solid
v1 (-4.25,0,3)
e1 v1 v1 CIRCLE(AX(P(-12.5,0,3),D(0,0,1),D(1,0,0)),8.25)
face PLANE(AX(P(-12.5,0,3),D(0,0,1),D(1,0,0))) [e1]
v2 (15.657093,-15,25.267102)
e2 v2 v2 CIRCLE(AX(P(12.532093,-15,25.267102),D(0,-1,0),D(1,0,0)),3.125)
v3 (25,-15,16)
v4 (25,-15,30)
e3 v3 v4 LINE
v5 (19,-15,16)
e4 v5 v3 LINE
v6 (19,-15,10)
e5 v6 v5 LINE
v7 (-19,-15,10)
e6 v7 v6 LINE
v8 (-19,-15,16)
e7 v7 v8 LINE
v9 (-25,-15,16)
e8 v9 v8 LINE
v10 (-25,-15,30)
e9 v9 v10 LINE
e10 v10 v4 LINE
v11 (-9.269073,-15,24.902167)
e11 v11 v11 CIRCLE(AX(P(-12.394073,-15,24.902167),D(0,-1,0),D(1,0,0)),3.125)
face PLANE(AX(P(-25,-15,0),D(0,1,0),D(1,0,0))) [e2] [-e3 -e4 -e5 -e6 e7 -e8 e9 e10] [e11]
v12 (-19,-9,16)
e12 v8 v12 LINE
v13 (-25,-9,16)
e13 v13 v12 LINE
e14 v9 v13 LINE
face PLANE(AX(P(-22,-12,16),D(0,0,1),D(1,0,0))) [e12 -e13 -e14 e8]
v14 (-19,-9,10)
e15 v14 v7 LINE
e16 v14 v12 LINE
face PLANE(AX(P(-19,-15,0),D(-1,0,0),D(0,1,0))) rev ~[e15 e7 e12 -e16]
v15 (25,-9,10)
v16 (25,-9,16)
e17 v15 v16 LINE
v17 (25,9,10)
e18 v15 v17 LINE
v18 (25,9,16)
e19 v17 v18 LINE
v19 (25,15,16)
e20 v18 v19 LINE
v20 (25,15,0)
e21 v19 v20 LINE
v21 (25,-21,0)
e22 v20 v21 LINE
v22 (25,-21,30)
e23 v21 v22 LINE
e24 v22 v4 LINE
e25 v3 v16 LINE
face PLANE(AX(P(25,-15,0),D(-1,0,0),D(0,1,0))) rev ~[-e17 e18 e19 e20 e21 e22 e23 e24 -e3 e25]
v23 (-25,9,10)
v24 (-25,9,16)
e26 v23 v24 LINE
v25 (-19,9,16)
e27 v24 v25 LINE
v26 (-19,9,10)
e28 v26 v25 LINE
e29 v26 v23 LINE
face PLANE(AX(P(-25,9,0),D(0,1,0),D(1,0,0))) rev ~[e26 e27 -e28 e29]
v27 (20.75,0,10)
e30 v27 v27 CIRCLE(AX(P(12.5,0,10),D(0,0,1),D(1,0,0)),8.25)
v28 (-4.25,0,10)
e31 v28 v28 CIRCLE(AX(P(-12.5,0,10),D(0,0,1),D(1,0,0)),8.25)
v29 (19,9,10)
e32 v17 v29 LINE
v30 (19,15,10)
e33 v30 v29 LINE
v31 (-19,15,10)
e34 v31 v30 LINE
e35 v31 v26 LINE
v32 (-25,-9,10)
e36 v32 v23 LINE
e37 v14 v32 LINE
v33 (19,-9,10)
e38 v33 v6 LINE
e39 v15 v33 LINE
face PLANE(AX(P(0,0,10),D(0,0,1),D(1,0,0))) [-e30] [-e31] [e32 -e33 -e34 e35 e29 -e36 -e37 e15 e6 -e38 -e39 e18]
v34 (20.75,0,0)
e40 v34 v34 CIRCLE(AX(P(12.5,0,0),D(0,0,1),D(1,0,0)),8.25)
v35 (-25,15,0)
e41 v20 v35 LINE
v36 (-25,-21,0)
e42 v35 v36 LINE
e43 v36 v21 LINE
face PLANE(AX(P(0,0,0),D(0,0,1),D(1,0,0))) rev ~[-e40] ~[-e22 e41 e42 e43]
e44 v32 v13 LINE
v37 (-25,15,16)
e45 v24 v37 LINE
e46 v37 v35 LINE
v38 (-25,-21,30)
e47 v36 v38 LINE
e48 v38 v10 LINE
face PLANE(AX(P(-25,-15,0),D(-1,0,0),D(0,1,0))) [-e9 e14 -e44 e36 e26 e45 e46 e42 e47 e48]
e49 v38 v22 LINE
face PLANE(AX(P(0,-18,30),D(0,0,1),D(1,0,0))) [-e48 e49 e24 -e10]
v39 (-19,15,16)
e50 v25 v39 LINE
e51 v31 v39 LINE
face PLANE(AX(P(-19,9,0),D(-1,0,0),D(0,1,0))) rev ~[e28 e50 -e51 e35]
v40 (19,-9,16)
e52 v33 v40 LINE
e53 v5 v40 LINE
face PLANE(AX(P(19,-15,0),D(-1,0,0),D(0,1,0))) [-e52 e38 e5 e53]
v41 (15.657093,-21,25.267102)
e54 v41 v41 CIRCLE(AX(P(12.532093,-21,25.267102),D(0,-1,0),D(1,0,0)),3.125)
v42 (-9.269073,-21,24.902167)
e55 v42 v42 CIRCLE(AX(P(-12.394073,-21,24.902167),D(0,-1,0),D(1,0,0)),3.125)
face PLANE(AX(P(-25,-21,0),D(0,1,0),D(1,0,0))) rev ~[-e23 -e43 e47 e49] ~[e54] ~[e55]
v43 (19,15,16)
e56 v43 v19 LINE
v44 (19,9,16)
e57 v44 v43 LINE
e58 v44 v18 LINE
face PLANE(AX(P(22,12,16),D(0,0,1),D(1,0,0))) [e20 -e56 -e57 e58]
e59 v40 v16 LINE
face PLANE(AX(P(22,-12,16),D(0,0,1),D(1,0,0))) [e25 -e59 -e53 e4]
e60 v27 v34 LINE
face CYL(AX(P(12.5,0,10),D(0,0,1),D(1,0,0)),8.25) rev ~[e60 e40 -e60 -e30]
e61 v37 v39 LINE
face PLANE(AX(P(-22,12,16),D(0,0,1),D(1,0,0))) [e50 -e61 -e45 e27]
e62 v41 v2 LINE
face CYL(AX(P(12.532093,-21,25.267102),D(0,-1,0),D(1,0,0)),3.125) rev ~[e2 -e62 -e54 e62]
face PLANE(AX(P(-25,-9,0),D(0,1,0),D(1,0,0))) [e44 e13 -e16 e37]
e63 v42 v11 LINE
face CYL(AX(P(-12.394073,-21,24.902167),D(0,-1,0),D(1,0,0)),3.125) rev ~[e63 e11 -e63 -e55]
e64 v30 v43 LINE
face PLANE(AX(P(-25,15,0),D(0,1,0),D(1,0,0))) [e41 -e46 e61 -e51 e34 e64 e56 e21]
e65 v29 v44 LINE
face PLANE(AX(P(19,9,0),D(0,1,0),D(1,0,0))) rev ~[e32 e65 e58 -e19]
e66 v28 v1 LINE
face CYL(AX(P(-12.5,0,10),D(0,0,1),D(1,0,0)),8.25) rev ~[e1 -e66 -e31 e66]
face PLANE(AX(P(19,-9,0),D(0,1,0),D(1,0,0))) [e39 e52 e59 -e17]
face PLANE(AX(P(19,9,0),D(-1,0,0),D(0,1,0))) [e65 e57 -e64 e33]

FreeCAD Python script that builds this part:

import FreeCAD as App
import Part
import Sketcher
from FreeCAD import Vector


def add_polygon(sketch, points):
    """Adds a closed chain of lines whose ends are joined by coincident constraints."""
    first, n = sketch.GeometryCount, len(points)
    for a, b in zip(points, points[1:] + points[:1]):
        sketch.addGeometry(Part.LineSegment(App.Vector(*a, 0), App.Vector(*b, 0)), False)
    for i in range(n):
        sketch.addConstraint(Sketcher.Constraint("Coincident", first + i, 2, first + (i + 1) % n, 1))

doc = App.newDocument("Part")
body = doc.addObject("PartDesign::Body", "Body")

# Sketch on XY plane
sketch1 = body.newObject("Sketcher::SketchObject", "Sketch")
sketch1.AttachmentSupport = (doc.getObject("XY_Plane"), [""])
sketch1.MapMode = "FlatFace"
add_polygon(sketch1, [(-25, -15), (-25, -21), (25, -21), (25, -15)])  # lines 0-3
sketch1.addConstraint(Sketcher.Constraint("Vertical", 0))
sketch1.addConstraint(Sketcher.Constraint("Horizontal", 1))
sketch1.addConstraint(Sketcher.Constraint("Vertical", 2))
sketch1.addConstraint(Sketcher.Constraint("Horizontal", 3))
sketch1.addConstraint(Sketcher.Constraint("DistanceX", 1, 1, 1, 2, 50.0))
sketch1.addConstraint(Sketcher.Constraint("DistanceY", 0, 2, 0, 1, 6.0))
sketch1.addConstraint(Sketcher.Constraint("DistanceX", 0, 2, -1, 1, 25.0))
sketch1.addConstraint(Sketcher.Constraint("DistanceY", 0, 2, -1, 1, 21.0))
pad1 = body.newObject("PartDesign::Pad", "Pad")
pad1.Profile = sketch1
pad1.Length = 30

# Sketch on XY plane
sketch2 = body.newObject("Sketcher::SketchObject", "Sketch001")
sketch2.AttachmentSupport = (doc.getObject("XY_Plane"), [""])
sketch2.MapMode = "FlatFace"
add_polygon(sketch2, [(-25, 15), (-25, -15), (25, -15), (25, 15)])  # lines 0-3
sketch2.addConstraint(Sketcher.Constraint("Vertical", 0))
sketch2.addConstraint(Sketcher.Constraint("Horizontal", 1))
sketch2.addConstraint(Sketcher.Constraint("Vertical", 2))
sketch2.addConstraint(Sketcher.Constraint("Horizontal", 3))
sketch2.addConstraint(Sketcher.Constraint("Symmetric", 0, 2, 2, 2, -1, 1))
sketch2.addConstraint(Sketcher.Constraint("DistanceX", 1, 1, 1, 2, 50.0))
sketch2.addConstraint(Sketcher.Constraint("DistanceY", 0, 2, 0, 1, 30.0))
pad2 = body.newObject("PartDesign::Pad", "Pad001")
pad2.Profile = sketch2
pad2.Length = 10

# Sketch on XY plane
sketch3 = body.newObject("Sketcher::SketchObject", "Sketch002")
sketch3.AttachmentSupport = (doc.getObject("XY_Plane"), [""])
sketch3.MapMode = "FlatFace"
add_polygon(sketch3, [(-25, 15), (-25, 9), (-19, 9), (-19, 15)])  # lines 0-3
add_polygon(sketch3, [(19, 15), (19, 9), (25, 9), (25, 15)])  # lines 4-7
add_polygon(sketch3, [(19, -9), (19, -15), (25, -15), (25, -9)])  # lines 8-11
add_polygon(sketch3, [(-25, -9), (-25, -15), (-19, -15), (-19, -9)])  # lines 12-15
sketch3.addConstraint(Sketcher.Constraint("Vertical", 0))
sketch3.addConstraint(Sketcher.Constraint("Horizontal", 1))
sketch3.addConstraint(Sketcher.Constraint("Vertical", 2))
sketch3.addConstraint(Sketcher.Constraint("Horizontal", 3))
sketch3.addConstraint(Sketcher.Constraint("Vertical", 4))
sketch3.addConstraint(Sketcher.Constraint("Horizontal", 5))
sketch3.addConstraint(Sketcher.Constraint("Vertical", 6))
sketch3.addConstraint(Sketcher.Constraint("Horizontal", 7))
sketch3.addConstraint(Sketcher.Constraint("Vertical", 8))
sketch3.addConstraint(Sketcher.Constraint("Horizontal", 9))
sketch3.addConstraint(Sketcher.Constraint("Vertical", 10))
sketch3.addConstraint(Sketcher.Constraint("Horizontal", 11))
sketch3.addConstraint(Sketcher.Constraint("Vertical", 12))
sketch3.addConstraint(Sketcher.Constraint("Horizontal", 13))
sketch3.addConstraint(Sketcher.Constraint("Vertical", 14))
sketch3.addConstraint(Sketcher.Constraint("Horizontal", 15))
sketch3.addConstraint(Sketcher.Constraint("Symmetric", 2, 2, 8, 2, -1, 1))
sketch3.addConstraint(Sketcher.Constraint("Symmetric", 0, 2, 10, 2, -1, 1))
sketch3.addConstraint(Sketcher.Constraint("Symmetric", 6, 2, 12, 2, -1, 1))
sketch3.addConstraint(Sketcher.Constraint("Symmetric", 4, 2, 14, 2, -1, 1))
sketch3.addConstraint(Sketcher.Constraint("Symmetric", 1, 2, 4, 2, -2))
sketch3.addConstraint(Sketcher.Constraint("Symmetric", 3, 2, 6, 2, -2))
sketch3.addConstraint(Sketcher.Constraint("Equal", 15, 0))
sketch3.addConstraint(Sketcher.Constraint("DistanceX", 1, 1, 1, 2, 6.0))
sketch3.addConstraint(Sketcher.Constraint("DistanceX", 0, 2, -1, 1, 25.0))
sketch3.addConstraint(Sketcher.Constraint("DistanceY", -1, 1, 0, 2, 9.0))
pad3 = body.newObject("PartDesign::Pad", "Pad002")
pad3.Profile = sketch3
pad3.Length = 16

# Sketch on XZ plane
sketch4 = body.newObject("Sketcher::SketchObject", "Sketch003")
sketch4.AttachmentSupport = (doc.getObject("XZ_Plane"), [""])
sketch4.MapMode = "FlatFace"
sketch4.AttachmentOffset = App.Placement(Vector(0, 0, 21), App.Rotation())
sketch4.addGeometry(Part.Circle(Vector(-12.4, 24.9, 0), Vector(0, 0, 1), 3.1), False)
sketch4.addGeometry(Part.Circle(Vector(12.5, 25.3, 0), Vector(0, 0, 1), 3.1), False)
sketch4.addConstraint(Sketcher.Constraint("Equal", 0, 1))
sketch4.addConstraint(Sketcher.Constraint("Diameter", 0, 6.25))
sketch4.addConstraint(Sketcher.Constraint("DistanceY", -1, 1, 1, 3, 25.267102))
sketch4.addConstraint(Sketcher.Constraint("DistanceX", 0, 3, -1, 1, 12.394073))
sketch4.addConstraint(Sketcher.Constraint("DistanceY", -1, 1, 0, 3, 24.902167))
sketch4.addConstraint(Sketcher.Constraint("DistanceX", -1, 1, 1, 3, 12.532093))
pocket1 = body.newObject("PartDesign::Pocket", "Pocket")
pocket1.Profile = sketch4
pocket1.Length = 10

# Sketch on XY plane
sketch5 = body.newObject("Sketcher::SketchObject", "Sketch004")
sketch5.AttachmentSupport = (doc.getObject("XY_Plane"), [""])
sketch5.MapMode = "FlatFace"
sketch5.AttachmentOffset = App.Placement(Vector(0, 0, 10), App.Rotation())
sketch5.addGeometry(Part.Circle(Vector(-12, 0, 0), Vector(0, 0, 1), 8), False)
sketch5.addConstraint(Sketcher.Constraint("PointOnObject", 0, 3, -1))
sketch5.addConstraint(Sketcher.Constraint("Diameter", 0, 16.5))
sketch5.addConstraint(Sketcher.Constraint("DistanceX", 0, 3, -1, 1, 12.5))
pocket2 = body.newObject("PartDesign::Pocket", "Pocket001")
pocket2.Profile = sketch5
pocket2.Length = 7

# Sketch on XY plane
sketch6 = body.newObject("Sketcher::SketchObject", "Sketch005")
sketch6.AttachmentSupport = (doc.getObject("XY_Plane"), [""])
sketch6.MapMode = "FlatFace"
sketch6.AttachmentOffset = App.Placement(Vector(0, 0, 10), App.Rotation())
sketch6.addGeometry(Part.Circle(Vector(12, 0, 0), Vector(0, 0, 1), 8), False)
sketch6.addConstraint(Sketcher.Constraint("PointOnObject", 0, 3, -1))
sketch6.addConstraint(Sketcher.Constraint("Diameter", 0, 16.5))
sketch6.addConstraint(Sketcher.Constraint("DistanceX", -1, 1, 0, 3, 12.5))
pocket3 = body.newObject("PartDesign::Pocket", "Pocket002")
pocket3.Profile = sketch6
pocket3.Length = 10

doc.recompute()
